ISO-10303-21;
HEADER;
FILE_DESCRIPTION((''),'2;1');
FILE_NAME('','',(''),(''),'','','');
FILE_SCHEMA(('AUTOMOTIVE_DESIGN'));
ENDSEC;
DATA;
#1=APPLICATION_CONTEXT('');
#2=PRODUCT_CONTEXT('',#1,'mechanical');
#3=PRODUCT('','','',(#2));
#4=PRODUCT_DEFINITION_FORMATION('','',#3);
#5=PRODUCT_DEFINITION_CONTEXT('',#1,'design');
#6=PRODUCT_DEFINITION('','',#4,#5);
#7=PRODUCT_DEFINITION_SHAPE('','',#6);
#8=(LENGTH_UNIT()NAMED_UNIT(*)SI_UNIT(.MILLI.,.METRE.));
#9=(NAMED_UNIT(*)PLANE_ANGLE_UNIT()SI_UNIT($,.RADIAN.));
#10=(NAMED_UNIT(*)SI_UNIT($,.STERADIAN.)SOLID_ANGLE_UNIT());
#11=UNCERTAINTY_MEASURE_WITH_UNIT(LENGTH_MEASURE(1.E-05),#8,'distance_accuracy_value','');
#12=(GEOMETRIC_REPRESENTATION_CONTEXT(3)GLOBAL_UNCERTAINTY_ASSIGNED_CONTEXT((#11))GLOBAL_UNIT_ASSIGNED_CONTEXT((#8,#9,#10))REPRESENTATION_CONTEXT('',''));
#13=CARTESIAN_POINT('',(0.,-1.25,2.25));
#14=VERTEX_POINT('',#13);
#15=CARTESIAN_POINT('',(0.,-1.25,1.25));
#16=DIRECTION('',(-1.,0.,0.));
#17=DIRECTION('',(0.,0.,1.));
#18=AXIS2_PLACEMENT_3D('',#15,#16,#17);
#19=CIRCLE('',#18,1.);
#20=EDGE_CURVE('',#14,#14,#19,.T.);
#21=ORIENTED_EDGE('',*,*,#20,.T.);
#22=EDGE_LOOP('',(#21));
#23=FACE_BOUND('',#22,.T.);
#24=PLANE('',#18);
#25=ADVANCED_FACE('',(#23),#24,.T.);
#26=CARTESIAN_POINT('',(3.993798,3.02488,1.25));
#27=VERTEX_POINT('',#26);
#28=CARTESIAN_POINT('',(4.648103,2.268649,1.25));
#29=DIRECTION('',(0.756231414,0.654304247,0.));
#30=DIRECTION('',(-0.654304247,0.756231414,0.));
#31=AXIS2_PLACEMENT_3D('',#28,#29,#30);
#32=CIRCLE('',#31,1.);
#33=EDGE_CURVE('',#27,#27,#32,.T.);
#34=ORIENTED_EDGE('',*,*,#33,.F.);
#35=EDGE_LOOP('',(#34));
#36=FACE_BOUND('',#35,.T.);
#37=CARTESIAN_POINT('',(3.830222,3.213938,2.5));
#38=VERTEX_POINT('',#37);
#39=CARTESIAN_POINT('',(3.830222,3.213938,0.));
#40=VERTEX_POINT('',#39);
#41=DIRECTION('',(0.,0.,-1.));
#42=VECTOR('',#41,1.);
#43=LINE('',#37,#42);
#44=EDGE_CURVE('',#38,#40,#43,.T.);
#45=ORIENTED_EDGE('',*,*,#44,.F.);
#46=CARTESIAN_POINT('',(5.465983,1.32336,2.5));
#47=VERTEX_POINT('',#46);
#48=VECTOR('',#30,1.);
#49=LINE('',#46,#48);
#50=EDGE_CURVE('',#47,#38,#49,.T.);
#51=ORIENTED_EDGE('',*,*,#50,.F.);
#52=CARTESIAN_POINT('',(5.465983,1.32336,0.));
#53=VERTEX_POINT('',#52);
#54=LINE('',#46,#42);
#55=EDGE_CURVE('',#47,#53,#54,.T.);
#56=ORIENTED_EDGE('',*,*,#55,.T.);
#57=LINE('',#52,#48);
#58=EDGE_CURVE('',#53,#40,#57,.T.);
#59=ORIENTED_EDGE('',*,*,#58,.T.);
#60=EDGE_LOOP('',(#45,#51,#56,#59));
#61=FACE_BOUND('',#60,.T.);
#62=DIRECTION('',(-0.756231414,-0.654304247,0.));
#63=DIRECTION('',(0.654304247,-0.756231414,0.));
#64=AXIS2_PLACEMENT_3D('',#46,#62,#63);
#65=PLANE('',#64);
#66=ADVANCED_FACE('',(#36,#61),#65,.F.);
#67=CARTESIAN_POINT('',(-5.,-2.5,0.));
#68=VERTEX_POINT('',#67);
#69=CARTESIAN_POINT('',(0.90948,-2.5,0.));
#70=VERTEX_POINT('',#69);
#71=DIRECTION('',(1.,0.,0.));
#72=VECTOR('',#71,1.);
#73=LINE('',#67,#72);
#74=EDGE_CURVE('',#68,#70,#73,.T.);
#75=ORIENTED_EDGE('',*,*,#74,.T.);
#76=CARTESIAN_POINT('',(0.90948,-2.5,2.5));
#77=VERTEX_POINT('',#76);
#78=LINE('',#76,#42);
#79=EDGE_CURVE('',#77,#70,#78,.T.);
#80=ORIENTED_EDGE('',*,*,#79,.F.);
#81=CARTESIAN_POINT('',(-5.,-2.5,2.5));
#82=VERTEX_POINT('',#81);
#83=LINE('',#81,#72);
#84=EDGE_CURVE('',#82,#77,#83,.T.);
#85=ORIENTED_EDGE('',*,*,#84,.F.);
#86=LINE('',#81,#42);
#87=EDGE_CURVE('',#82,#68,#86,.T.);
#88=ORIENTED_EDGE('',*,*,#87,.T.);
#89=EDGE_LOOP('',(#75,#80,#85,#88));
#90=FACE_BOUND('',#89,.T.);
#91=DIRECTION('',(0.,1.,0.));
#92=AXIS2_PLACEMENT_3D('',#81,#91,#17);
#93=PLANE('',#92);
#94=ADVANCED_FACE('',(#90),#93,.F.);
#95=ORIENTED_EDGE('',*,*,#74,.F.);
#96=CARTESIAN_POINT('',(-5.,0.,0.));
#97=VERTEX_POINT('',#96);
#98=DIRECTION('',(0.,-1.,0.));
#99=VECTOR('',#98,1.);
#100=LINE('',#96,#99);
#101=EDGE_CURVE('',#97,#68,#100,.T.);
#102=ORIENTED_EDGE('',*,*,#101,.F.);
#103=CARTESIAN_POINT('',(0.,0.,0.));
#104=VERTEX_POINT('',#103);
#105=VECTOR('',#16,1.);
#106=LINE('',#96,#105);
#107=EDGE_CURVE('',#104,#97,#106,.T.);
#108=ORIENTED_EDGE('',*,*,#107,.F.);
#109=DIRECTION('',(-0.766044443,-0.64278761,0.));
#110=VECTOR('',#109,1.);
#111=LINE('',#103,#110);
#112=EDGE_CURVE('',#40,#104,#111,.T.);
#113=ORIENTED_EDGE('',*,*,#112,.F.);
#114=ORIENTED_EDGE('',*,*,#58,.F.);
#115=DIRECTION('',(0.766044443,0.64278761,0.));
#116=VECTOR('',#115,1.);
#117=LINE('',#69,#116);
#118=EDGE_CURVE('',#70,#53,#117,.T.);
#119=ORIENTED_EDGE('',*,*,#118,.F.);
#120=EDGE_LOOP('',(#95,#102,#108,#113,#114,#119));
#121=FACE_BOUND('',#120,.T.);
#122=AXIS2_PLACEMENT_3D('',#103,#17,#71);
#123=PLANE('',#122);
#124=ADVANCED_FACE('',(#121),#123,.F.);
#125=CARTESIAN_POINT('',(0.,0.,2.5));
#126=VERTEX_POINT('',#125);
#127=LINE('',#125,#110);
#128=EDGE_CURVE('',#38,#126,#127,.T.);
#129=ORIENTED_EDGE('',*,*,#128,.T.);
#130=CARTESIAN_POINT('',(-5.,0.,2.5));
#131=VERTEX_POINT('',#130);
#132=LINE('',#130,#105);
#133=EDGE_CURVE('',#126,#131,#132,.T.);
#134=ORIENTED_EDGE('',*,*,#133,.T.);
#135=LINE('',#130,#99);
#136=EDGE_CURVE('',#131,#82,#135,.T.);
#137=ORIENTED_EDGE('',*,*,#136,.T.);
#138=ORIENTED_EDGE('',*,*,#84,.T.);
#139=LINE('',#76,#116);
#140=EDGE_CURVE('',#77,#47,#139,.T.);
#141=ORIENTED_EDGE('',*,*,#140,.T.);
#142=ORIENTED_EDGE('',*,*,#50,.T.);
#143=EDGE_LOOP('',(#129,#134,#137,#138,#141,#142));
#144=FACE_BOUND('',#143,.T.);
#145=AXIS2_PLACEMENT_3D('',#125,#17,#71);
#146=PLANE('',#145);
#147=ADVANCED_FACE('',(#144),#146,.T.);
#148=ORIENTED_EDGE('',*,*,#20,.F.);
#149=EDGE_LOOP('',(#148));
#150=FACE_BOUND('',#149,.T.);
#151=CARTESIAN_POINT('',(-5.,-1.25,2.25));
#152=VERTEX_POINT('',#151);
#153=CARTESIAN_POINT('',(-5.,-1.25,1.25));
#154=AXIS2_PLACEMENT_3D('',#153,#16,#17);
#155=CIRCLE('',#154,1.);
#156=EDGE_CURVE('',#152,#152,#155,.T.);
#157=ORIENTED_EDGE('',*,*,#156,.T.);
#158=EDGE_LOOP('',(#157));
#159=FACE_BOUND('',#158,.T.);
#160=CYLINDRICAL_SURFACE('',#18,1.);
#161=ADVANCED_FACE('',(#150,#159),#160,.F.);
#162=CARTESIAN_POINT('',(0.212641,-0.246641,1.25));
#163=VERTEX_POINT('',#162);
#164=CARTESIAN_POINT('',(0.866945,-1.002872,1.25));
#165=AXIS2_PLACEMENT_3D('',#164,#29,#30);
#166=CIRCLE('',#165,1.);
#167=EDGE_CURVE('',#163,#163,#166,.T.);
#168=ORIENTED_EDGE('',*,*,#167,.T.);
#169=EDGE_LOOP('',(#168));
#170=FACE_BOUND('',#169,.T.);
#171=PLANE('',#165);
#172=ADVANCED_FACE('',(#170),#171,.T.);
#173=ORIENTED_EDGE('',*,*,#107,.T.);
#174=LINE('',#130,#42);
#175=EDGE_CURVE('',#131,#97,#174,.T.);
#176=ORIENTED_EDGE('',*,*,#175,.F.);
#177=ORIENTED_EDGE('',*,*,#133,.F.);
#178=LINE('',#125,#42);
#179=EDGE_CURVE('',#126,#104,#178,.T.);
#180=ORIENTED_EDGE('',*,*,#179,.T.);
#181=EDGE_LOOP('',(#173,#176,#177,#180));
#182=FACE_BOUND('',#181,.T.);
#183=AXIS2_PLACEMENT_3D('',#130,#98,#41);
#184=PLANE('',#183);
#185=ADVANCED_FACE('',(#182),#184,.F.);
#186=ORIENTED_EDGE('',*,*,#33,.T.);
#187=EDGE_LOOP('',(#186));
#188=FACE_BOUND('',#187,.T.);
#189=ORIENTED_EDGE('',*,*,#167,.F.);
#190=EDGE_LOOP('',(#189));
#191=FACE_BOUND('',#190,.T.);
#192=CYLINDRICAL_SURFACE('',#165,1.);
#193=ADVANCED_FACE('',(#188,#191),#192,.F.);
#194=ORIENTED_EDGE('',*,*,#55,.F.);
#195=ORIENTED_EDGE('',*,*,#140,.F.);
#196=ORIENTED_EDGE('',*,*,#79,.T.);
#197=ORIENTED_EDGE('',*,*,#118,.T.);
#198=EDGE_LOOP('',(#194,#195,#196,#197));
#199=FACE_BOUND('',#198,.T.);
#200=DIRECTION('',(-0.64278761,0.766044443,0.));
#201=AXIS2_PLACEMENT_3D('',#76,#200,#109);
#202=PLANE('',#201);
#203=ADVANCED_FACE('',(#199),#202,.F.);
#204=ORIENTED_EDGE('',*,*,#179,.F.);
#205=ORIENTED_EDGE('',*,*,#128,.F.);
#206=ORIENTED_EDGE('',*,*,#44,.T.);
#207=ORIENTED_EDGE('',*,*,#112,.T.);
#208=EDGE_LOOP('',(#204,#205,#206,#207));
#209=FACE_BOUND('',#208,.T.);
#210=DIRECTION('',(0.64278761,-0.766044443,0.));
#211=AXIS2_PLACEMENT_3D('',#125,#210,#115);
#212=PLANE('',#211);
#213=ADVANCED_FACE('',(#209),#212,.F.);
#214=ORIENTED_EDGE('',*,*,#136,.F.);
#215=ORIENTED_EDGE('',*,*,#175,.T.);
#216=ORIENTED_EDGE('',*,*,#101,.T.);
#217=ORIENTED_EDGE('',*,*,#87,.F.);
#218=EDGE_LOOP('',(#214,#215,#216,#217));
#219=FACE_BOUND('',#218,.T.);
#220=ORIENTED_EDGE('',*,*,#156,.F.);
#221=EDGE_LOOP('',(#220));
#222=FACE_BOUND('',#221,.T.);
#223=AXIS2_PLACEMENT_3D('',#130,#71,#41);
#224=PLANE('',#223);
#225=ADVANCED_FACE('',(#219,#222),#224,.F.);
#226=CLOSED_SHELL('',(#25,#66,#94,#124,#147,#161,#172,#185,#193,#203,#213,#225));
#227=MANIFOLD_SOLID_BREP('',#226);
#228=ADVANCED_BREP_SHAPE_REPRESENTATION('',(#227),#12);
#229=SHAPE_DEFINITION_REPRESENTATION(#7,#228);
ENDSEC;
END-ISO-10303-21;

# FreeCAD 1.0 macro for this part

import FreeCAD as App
import Part
import Sketcher
Q = App.Units.Quantity

doc = App.newDocument("Part")
body = doc.addObject("PartDesign::Body", "Body")

# Sketch on XY plane
sketch1 = body.newObject("Sketcher::SketchObject", "Sketch")
sketch1.AttachmentSupport = (doc.getObject("XY_Plane"), [""])
sketch1.MapMode = "FlatFace"
sketch1.addGeometry(Part.LineSegment(App.Vector(0, 0, 0), App.Vector(-5, 0, 0)), False)
sketch1.addGeometry(Part.LineSegment(App.Vector(-5, 0, 0), App.Vector(-5, -2.5, 0)), False)
sketch1.addGeometry(Part.LineSegment(App.Vector(-5, -2.5, 0), App.Vector(0.9, -2.5, 0)), False)
sketch1.addGeometry(Part.LineSegment(App.Vector(0.9, -2.5, 0), App.Vector(5.5, 1.3, 0)), False)
sketch1.addGeometry(Part.LineSegment(App.Vector(5.5, 1.3, 0), App.Vector(3.8, 3.2, 0)), False)
sketch1.addGeometry(Part.LineSegment(App.Vector(3.8, 3.2, 0), App.Vector(0, 0, 0)), False)
sketch1.addConstraint(Sketcher.Constraint("Coincident", 0, 2, 1, 1))
sketch1.addConstraint(Sketcher.Constraint("Coincident", 1, 2, 2, 1))
sketch1.addConstraint(Sketcher.Constraint("Coincident", 2, 2, 3, 1))
sketch1.addConstraint(Sketcher.Constraint("Coincident", 3, 2, 4, 1))
sketch1.addConstraint(Sketcher.Constraint("Coincident", 4, 2, 5, 1))
sketch1.addConstraint(Sketcher.Constraint("Coincident", 5, 2, 0, 1))
sketch1.addConstraint(Sketcher.Constraint("Horizontal", 0))
sketch1.addConstraint(Sketcher.Constraint("Vertical", 1))
sketch1.addConstraint(Sketcher.Constraint("Horizontal", 2))
sketch1.addConstraint(Sketcher.Constraint("Coincident", 5, 2, -1, 1))
sketch1.addConstraint(Sketcher.Constraint("Parallel", 3, 5))
sketch1.addConstraint(Sketcher.Constraint("DistanceX", 0, 2, 0, 1, 5.0))
sketch1.addConstraint(Sketcher.Constraint("Angle", 3, Q("40 deg")))
sketch1.addConstraint(Sketcher.Constraint("Distance", 5, 5.0))
sketch1.addConstraint(Sketcher.Constraint("DistanceY", 1, 2, 1, 1, 2.5))
sketch1.addConstraint(Sketcher.Constraint("Distance", 4, 2.5))
sketch1.addConstraint(Sketcher.Constraint("DistanceX", 2, 1, 2, 2, 5.90948))
pad1 = body.newObject("PartDesign::Pad", "Pad")
pad1.Profile = sketch1
pad1.Length = 2.5

# Sketch on an angled plane
sketch2 = body.newObject("Sketcher::SketchObject", "Sketch001")
sketch2.Placement = App.Placement(App.Vector(3.780724, 3.271147, 0), App.Rotation(App.Vector(0, 0, -1), App.Vector(-0.654304247, 0.756231414, 0), App.Vector(0.756231414, 0.654304247, 0), "ZXY"))
sketch2.addGeometry(Part.Circle(App.Vector(-1.2, -1.3, 0), App.Vector(0, 0, 1), 1), False)
sketch2.addConstraint(Sketcher.Constraint("Diameter", 0, 2.0))
sketch2.addConstraint(Sketcher.Constraint("DistanceX", 0, 3, -1, 1, 1.25))
sketch2.addConstraint(Sketcher.Constraint("DistanceY", 0, 3, -1, 1, 1.32565))
pocket1 = body.newObject("PartDesign::Pocket", "Pocket")
pocket1.Profile = sketch2
pocket1.Length = 5

# Sketch on YZ plane
sketch3 = body.newObject("Sketcher::SketchObject", "Sketch002")
sketch3.AttachmentSupport = (doc.getObject("YZ_Plane"), [""])
sketch3.MapMode = "FlatFace"
sketch3.AttachmentOffset = App.Placement(App.Vector(0, 0, -5), App.Rotation())
sketch3.addGeometry(Part.Circle(App.Vector(-1.2, 1.2, 0), App.Vector(0, 0, 1), 1), False)
sketch3.addConstraint(Sketcher.Constraint("Diameter", 0, 2.0))
sketch3.addConstraint(Sketcher.Constraint("DistanceX", 0, 3, -1, 1, 1.25))
sketch3.addConstraint(Sketcher.Constraint("DistanceY", -1, 1, 0, 3, 1.25))
pocket2 = body.newObject("PartDesign::Pocket", "Pocket001")
pocket2.Profile = sketch3
pocket2.Length = 5
pocket2.Reversed = True

doc.recompute()
